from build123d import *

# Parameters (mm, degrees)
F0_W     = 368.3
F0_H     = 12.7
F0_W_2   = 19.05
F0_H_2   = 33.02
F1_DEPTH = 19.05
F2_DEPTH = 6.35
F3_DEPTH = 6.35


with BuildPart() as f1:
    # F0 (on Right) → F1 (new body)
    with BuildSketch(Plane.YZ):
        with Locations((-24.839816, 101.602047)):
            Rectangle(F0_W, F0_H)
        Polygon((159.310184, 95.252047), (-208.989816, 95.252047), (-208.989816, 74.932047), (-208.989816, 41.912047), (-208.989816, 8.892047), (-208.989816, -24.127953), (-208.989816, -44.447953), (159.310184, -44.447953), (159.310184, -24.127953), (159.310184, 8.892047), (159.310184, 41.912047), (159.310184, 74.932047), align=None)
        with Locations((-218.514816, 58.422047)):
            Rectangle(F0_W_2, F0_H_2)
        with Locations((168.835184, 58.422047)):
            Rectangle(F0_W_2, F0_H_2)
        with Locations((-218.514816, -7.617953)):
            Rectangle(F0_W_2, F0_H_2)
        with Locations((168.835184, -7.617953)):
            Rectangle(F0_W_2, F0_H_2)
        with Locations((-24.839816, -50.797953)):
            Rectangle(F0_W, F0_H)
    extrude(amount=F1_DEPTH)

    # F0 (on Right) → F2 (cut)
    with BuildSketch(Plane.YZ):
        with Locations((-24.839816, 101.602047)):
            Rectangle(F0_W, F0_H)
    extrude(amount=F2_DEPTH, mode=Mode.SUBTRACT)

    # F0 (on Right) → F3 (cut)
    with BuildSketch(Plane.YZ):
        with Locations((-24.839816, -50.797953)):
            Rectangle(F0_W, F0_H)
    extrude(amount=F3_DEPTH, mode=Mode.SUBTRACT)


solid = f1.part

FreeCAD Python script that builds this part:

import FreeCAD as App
import Part
import Sketcher
from FreeCAD import Vector
Q = App.Units.Quantity

doc = App.newDocument("Part")
body = doc.addObject("PartDesign::Body", "Body")

sketch1 = body.newObject("Sketcher::SketchObject", "Sketch")
sketch1.AttachmentSupport = (doc.getObject("YZ_Plane"), [""])
sketch1.MapMode = "FlatFace"
sketch1.addGeometry([
    Part.LineSegment(Vector(-209, 108, 0), Vector(-209, 75, 0)),
    Part.LineSegment(Vector(-209, 75, 0), Vector(-228, 75, 0)),
    Part.LineSegment(Vector(-228, 75, 0), Vector(-228, 42, 0)),
    Part.LineSegment(Vector(-228, 42, 0), Vector(-209, 42, 0)),
    Part.LineSegment(Vector(-209, 42, 0), Vector(-209, 9, 0)),
    Part.LineSegment(Vector(-209, 9, 0), Vector(-228, 9, 0)),
    Part.LineSegment(Vector(-228, 9, 0), Vector(-228, -24, 0)),
    Part.LineSegment(Vector(-228, -24, 0), Vector(-209, -24, 0)),
    Part.LineSegment(Vector(-209, -24, 0), Vector(-209, -57, 0)),
    Part.LineSegment(Vector(-209, -57, 0), Vector(159, -57, 0)),
    Part.LineSegment(Vector(159, -57, 0), Vector(159, -24, 0)),
    Part.LineSegment(Vector(159, -24, 0), Vector(178, -24, 0)),
    Part.LineSegment(Vector(178, -24, 0), Vector(178, 9, 0)),
    Part.LineSegment(Vector(178, 9, 0), Vector(159, 9, 0)),
    Part.LineSegment(Vector(159, 9, 0), Vector(159, 42, 0)),
    Part.LineSegment(Vector(159, 42, 0), Vector(178, 42, 0)),
    Part.LineSegment(Vector(178, 42, 0), Vector(178, 75, 0)),
    Part.LineSegment(Vector(178, 75, 0), Vector(159, 75, 0)),
    Part.LineSegment(Vector(159, 75, 0), Vector(159, 108, 0)),
    Part.LineSegment(Vector(159, 108, 0), Vector(-209, 108, 0)),
], False)
sketch1.addConstraint([
    Sketcher.Constraint("Coincident", 0, 2, 1, 1),
    Sketcher.Constraint("Coincident", 1, 2, 2, 1),
    Sketcher.Constraint("Coincident", 2, 2, 3, 1),
    Sketcher.Constraint("Coincident", 3, 2, 4, 1),
    Sketcher.Constraint("Coincident", 4, 2, 5, 1),
    Sketcher.Constraint("Coincident", 5, 2, 6, 1),
    Sketcher.Constraint("Coincident", 6, 2, 7, 1),
    Sketcher.Constraint("Coincident", 7, 2, 8, 1),
    Sketcher.Constraint("Coincident", 8, 2, 9, 1),
    Sketcher.Constraint("Coincident", 9, 2, 10, 1),
    Sketcher.Constraint("Coincident", 10, 2, 11, 1),
    Sketcher.Constraint("Coincident", 11, 2, 12, 1),
    Sketcher.Constraint("Coincident", 12, 2, 13, 1),
    Sketcher.Constraint("Coincident", 13, 2, 14, 1),
    Sketcher.Constraint("Coincident", 14, 2, 15, 1),
    Sketcher.Constraint("Coincident", 15, 2, 16, 1),
    Sketcher.Constraint("Coincident", 16, 2, 17, 1),
    Sketcher.Constraint("Coincident", 17, 2, 18, 1),
    Sketcher.Constraint("Coincident", 18, 2, 19, 1),
    Sketcher.Constraint("Coincident", 19, 2, 0, 1),
    Sketcher.Constraint("Vertical", 0),
    Sketcher.Constraint("Horizontal", 1),
    Sketcher.Constraint("Vertical", 2),
    Sketcher.Constraint("Horizontal", 3),
    Sketcher.Constraint("Vertical", 4),
    Sketcher.Constraint("Horizontal", 5),
    Sketcher.Constraint("Vertical", 6),
    Sketcher.Constraint("Horizontal", 7),
    Sketcher.Constraint("Vertical", 8),
    Sketcher.Constraint("Horizontal", 9),
    Sketcher.Constraint("Vertical", 10),
    Sketcher.Constraint("Horizontal", 11),
    Sketcher.Constraint("Vertical", 12),
    Sketcher.Constraint("Horizontal", 13),
    Sketcher.Constraint("Vertical", 14),
    Sketcher.Constraint("Horizontal", 15),
    Sketcher.Constraint("Vertical", 16),
    Sketcher.Constraint("Horizontal", 17),
    Sketcher.Constraint("Vertical", 18),
    Sketcher.Constraint("Horizontal", 19),
    Sketcher.Constraint("Horizontal", 7, 2, 10, 2),
    Sketcher.Constraint("Horizontal", 5, 2, 12, 2),
    Sketcher.Constraint("Horizontal", 3, 2, 14, 2),
    Sketcher.Constraint("Horizontal", 1, 2, 16, 2),
    Sketcher.Constraint("Vertical", 0, 2, 3, 2),
    Sketcher.Constraint("Vertical", 2, 2, 5, 2),
    Sketcher.Constraint("Vertical", 4, 2, 7, 2),
    Sketcher.Constraint("Vertical", 10, 2, 13, 2),
    Sketcher.Constraint("Vertical", 12, 2, 15, 2),
    Sketcher.Constraint("Vertical", 14, 2, 17, 2),
    Sketcher.Constraint("Equal", 7, 11),
    Sketcher.Constraint("Equal", 0, 2),
    Sketcher.Constraint("Equal", 2, 4),
    Sketcher.Constraint("Equal", 4, 6),
    Sketcher.Constraint("Equal", 6, 8),
    Sketcher.Constraint("DistanceX", 9, 1, 9, 2, Q("14.5 in")),
    Sketcher.Constraint("DistanceY", 0, 2, 0, 1, Q("1.3 in")),
    Sketcher.Constraint("DistanceX", 1, 2, 1, 1, Q("0.75 in")),
    Sketcher.Constraint("DistanceX", 0, 2, -1, 1, Q("208.989816 mm")),
    Sketcher.Constraint("DistanceY", -1, 1, 0, 2, Q("74.932047 mm")),
])
pad1 = body.newObject("PartDesign::Pad", "Pad")
pad1.Profile = sketch1
pad1.Length = Q("0.75 in")

sketch2 = body.newObject("Sketcher::SketchObject", "Sketch001")
sketch2.AttachmentSupport = (doc.getObject("YZ_Plane"), [""])
sketch2.MapMode = "FlatFace"
sketch2.addGeometry([
    Part.LineSegment(Vector(-209, 108, 0), Vector(-209, 95, 0)),
    Part.LineSegment(Vector(-209, 95, 0), Vector(159, 95, 0)),
    Part.LineSegment(Vector(159, 95, 0), Vector(159, 108, 0)),
    Part.LineSegment(Vector(159, 108, 0), Vector(-209, 108, 0)),
], False)
sketch2.addConstraint([
    Sketcher.Constraint("Coincident", 0, 2, 1, 1),
    Sketcher.Constraint("Coincident", 1, 2, 2, 1),
    Sketcher.Constraint("Coincident", 2, 2, 3, 1),
    Sketcher.Constraint("Coincident", 3, 2, 0, 1),
    Sketcher.Constraint("Vertical", 0),
    Sketcher.Constraint("Horizontal", 1),
    Sketcher.Constraint("Vertical", 2),
    Sketcher.Constraint("Horizontal", 3),
    Sketcher.Constraint("DistanceX", 1, 1, 1, 2, Q("14.5 in")),
    Sketcher.Constraint("DistanceY", 0, 2, 0, 1, Q("0.5 in")),
    Sketcher.Constraint("DistanceX", 0, 2, -1, 1, Q("208.989816 mm")),
    Sketcher.Constraint("DistanceY", -1, 1, 0, 2, Q("95.252047 mm")),
])
pocket1 = body.newObject("PartDesign::Pocket", "Pocket")
pocket1.Profile = sketch2
pocket1.Length = Q("0.25 in")
pocket1.Reversed = True

sketch3 = body.newObject("Sketcher::SketchObject", "Sketch002")
sketch3.AttachmentSupport = (doc.getObject("YZ_Plane"), [""])
sketch3.MapMode = "FlatFace"
sketch3.addGeometry([
    Part.LineSegment(Vector(-209, -44, 0), Vector(-209, -57, 0)),
    Part.LineSegment(Vector(-209, -57, 0), Vector(159, -57, 0)),
    Part.LineSegment(Vector(159, -57, 0), Vector(159, -44, 0)),
    Part.LineSegment(Vector(159, -44, 0), Vector(-209, -44, 0)),
], False)
sketch3.addConstraint([
    Sketcher.Constraint("Coincident", 0, 2, 1, 1),
    Sketcher.Constraint("Coincident", 1, 2, 2, 1),
    Sketcher.Constraint("Coincident", 2, 2, 3, 1),
    Sketcher.Constraint("Coincident", 3, 2, 0, 1),
    Sketcher.Constraint("Vertical", 0),
    Sketcher.Constraint("Horizontal", 1),
    Sketcher.Constraint("Vertical", 2),
    Sketcher.Constraint("Horizontal", 3),
    Sketcher.Constraint("DistanceX", 1, 1, 1, 2, Q("14.5 in")),
    Sketcher.Constraint("DistanceY", 0, 2, 0, 1, Q("0.5 in")),
    Sketcher.Constraint("DistanceX", 0, 2, -1, 1, Q("208.989816 mm")),
    Sketcher.Constraint("DistanceY", 0, 2, -1, 1, Q("57.147953 mm")),
])
pocket2 = body.newObject("PartDesign::Pocket", "Pocket001")
pocket2.Profile = sketch3
pocket2.Length = Q("0.25 in")
pocket2.Reversed = True

doc.recompute()
